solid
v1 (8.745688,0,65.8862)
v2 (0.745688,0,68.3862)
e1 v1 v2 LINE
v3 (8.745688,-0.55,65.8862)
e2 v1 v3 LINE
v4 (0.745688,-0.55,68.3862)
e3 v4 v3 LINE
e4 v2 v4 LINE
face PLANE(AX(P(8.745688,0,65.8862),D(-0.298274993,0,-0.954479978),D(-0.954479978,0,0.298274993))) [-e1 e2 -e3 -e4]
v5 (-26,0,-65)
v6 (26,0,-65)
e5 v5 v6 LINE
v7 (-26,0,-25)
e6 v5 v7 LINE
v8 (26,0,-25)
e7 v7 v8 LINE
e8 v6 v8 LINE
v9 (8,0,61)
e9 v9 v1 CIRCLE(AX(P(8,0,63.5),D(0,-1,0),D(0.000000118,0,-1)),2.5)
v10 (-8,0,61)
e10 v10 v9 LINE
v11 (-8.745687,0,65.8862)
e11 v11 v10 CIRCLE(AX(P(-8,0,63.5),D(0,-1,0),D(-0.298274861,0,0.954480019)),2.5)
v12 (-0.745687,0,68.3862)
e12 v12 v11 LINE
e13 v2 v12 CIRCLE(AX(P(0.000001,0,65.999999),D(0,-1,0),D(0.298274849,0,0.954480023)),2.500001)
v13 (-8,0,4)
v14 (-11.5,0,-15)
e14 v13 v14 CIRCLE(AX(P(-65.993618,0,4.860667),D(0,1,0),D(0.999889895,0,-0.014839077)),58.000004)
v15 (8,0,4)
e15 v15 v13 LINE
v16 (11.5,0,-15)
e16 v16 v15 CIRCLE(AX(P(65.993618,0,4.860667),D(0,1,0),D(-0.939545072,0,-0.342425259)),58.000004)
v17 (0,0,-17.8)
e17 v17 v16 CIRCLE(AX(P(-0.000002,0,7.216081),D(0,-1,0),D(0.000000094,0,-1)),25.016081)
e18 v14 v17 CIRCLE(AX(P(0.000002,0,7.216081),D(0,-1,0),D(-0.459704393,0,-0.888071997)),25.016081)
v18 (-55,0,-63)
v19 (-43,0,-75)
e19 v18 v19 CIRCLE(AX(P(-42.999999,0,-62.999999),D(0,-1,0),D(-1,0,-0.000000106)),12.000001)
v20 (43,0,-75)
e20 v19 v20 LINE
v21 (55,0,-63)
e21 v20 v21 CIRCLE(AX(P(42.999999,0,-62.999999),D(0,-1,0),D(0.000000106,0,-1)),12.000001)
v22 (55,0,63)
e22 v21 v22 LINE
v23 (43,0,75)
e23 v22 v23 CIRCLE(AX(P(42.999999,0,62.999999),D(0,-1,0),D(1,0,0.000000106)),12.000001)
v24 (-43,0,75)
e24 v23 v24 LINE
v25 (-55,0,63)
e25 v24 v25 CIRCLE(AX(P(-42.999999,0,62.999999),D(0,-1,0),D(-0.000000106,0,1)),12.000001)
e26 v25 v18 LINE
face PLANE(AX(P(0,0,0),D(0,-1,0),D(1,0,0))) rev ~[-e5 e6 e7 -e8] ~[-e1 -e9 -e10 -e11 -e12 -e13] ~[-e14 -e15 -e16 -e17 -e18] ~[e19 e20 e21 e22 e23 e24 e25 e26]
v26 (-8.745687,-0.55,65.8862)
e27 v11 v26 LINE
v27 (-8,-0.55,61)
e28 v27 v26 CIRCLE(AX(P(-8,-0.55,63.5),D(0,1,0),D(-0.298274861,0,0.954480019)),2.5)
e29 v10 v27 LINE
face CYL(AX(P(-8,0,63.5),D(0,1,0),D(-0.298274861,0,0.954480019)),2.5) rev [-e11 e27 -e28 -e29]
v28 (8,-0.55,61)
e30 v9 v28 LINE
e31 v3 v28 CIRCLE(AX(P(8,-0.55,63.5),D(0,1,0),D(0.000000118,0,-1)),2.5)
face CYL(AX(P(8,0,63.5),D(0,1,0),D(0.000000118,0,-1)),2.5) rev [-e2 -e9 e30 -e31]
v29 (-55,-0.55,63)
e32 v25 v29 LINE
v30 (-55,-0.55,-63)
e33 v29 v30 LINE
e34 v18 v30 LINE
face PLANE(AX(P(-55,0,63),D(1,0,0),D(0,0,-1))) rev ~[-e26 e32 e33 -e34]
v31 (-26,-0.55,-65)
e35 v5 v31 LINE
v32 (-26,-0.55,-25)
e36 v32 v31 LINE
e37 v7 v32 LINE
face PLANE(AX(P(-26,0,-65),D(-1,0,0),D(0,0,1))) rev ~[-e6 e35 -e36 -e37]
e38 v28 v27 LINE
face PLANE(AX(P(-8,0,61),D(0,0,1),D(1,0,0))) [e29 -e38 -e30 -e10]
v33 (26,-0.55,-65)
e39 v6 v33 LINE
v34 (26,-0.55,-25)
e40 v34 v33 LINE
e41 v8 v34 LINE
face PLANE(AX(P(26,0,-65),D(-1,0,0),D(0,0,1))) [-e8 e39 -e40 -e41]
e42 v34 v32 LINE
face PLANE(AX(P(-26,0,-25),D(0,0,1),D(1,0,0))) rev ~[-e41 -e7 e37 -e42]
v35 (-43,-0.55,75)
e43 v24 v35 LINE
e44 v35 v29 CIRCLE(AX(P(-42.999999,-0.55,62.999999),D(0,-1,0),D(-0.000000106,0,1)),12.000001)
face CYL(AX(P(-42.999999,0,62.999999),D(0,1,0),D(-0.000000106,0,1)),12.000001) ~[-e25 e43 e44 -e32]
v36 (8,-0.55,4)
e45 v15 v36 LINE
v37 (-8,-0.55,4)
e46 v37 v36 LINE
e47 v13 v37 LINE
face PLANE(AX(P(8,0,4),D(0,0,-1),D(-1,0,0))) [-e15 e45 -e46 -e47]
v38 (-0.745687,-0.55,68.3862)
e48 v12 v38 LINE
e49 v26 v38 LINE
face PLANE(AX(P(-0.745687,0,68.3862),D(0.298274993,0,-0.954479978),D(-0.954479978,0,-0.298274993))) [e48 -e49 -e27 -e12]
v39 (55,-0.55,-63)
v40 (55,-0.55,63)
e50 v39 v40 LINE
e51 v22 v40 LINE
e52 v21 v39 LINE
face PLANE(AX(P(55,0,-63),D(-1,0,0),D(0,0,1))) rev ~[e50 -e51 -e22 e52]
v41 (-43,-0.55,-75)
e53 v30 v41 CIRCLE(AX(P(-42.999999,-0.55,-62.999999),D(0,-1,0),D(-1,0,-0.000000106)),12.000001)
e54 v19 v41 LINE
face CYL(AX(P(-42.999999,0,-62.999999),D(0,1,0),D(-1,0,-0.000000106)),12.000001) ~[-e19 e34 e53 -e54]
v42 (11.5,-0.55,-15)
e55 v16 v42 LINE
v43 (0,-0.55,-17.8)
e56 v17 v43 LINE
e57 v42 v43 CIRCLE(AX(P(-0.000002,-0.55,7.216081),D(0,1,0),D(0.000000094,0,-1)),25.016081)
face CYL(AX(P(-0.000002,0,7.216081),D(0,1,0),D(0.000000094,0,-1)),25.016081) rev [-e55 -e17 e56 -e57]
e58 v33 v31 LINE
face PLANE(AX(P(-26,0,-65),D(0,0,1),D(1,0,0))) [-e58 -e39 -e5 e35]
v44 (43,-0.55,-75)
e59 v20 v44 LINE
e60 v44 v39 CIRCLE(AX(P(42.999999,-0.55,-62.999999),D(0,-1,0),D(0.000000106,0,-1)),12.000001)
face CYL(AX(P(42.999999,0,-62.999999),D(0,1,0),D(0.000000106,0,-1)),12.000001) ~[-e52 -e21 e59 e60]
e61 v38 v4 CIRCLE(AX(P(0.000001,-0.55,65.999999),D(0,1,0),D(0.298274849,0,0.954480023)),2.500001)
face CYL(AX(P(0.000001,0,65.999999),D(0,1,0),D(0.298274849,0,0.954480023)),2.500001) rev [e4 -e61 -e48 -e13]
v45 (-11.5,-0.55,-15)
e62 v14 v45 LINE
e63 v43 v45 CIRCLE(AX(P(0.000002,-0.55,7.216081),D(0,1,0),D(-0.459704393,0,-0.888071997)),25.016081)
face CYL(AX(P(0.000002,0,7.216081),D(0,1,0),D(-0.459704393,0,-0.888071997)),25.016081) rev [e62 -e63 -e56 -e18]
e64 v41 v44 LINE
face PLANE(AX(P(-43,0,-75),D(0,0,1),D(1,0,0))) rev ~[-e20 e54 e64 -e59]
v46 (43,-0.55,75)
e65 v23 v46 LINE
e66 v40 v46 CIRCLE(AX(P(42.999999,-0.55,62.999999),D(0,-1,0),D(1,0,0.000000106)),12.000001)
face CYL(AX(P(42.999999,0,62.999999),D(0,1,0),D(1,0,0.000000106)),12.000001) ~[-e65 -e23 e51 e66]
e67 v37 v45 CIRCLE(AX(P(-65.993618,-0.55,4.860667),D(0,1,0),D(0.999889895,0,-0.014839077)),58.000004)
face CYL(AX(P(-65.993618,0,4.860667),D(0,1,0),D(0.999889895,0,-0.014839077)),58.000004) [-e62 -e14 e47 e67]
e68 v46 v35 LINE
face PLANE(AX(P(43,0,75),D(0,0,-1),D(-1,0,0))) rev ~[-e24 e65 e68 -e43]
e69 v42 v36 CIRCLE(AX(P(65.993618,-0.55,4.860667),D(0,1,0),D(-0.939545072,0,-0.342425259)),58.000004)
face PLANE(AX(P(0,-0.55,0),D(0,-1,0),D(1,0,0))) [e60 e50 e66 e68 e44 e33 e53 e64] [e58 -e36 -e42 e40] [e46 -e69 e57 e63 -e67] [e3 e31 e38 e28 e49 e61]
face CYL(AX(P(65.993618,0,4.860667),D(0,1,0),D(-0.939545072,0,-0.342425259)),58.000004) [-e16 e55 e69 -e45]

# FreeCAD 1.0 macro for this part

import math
import FreeCAD as App
import Part
import Sketcher
from FreeCAD import Vector
Q = App.Units.Quantity


def add_polygon(sketch, points):
    """Adds a closed chain of lines whose ends are joined by coincident constraints."""
    first, n = sketch.GeometryCount, len(points)
    for a, b in zip(points, points[1:] + points[:1]):
        sketch.addGeometry(Part.LineSegment(App.Vector(*a, 0), App.Vector(*b, 0)), False)
    for i in range(n):
        sketch.addConstraint(Sketcher.Constraint("Coincident", first + i, 2, first + (i + 1) % n, 1))

doc = App.newDocument("Part")
body = doc.addObject("PartDesign::Body", "Body")

# Sketch on XZ plane
sketch1 = body.newObject("Sketcher::SketchObject", "Sketch")
sketch1.AttachmentSupport = (doc.getObject("XZ_Plane"), [""])
sketch1.MapMode = "FlatFace"
sketch1.addGeometry(Part.ArcOfCircle(Part.Circle(Vector(43, 63, 0), Vector(0, 0, 1), 12), math.radians(0), math.radians(90)), False)
sketch1.addGeometry(Part.LineSegment(Vector(43, 75, 0), Vector(-43, 75, 0)), False)
sketch1.addGeometry(Part.ArcOfCircle(Part.Circle(Vector(-43, 63, 0), Vector(0, 0, 1), 12), math.radians(90), math.radians(180)), False)
sketch1.addGeometry(Part.LineSegment(Vector(-55, 63, 0), Vector(-55, -63, 0)), False)
sketch1.addGeometry(Part.ArcOfCircle(Part.Circle(Vector(-43, -63, 0), Vector(0, 0, 1), 12), math.radians(-180), math.radians(-90)), False)
sketch1.addGeometry(Part.LineSegment(Vector(-43, -75, 0), Vector(43, -75, 0)), False)
sketch1.addGeometry(Part.ArcOfCircle(Part.Circle(Vector(43, -63, 0), Vector(0, 0, 1), 12), math.radians(-90), math.radians(0)), False)
sketch1.addGeometry(Part.LineSegment(Vector(55, -63, 0), Vector(55, 63, 0)), False)
sketch1.addConstraint(Sketcher.Constraint("Tangent", 0, 2, 1, 1))
sketch1.addConstraint(Sketcher.Constraint("Tangent", 1, 2, 2, 1))
sketch1.addConstraint(Sketcher.Constraint("Tangent", 2, 2, 3, 1))
sketch1.addConstraint(Sketcher.Constraint("Tangent", 3, 2, 4, 1))
sketch1.addConstraint(Sketcher.Constraint("Tangent", 4, 2, 5, 1))
sketch1.addConstraint(Sketcher.Constraint("Tangent", 5, 2, 6, 1))
sketch1.addConstraint(Sketcher.Constraint("Tangent", 6, 2, 7, 1))
sketch1.addConstraint(Sketcher.Constraint("Tangent", 7, 2, 0, 1))
sketch1.addConstraint(Sketcher.Constraint("Horizontal", 1))
sketch1.addConstraint(Sketcher.Constraint("Vertical", 3))
sketch1.addConstraint(Sketcher.Constraint("Horizontal", 5))
sketch1.addConstraint(Sketcher.Constraint("Vertical", 7))
sketch1.addConstraint(Sketcher.Constraint("Equal", 0, 2))
sketch1.addConstraint(Sketcher.Constraint("Equal", 2, 4))
sketch1.addConstraint(Sketcher.Constraint("Equal", 4, 6))
sketch1.addConstraint(Sketcher.Constraint("Symmetric", 0, 3, 4, 3, -1, 1))
sketch1.addConstraint(Sketcher.Constraint("Radius", 0, Q("12.000001 mm")))
sketch1.addConstraint(Sketcher.Constraint("DistanceX", 1, 2, 1, 1, Q("86 mm")))
sketch1.addConstraint(Sketcher.Constraint("DistanceY", 3, 2, 3, 1, Q("126 mm")))
pad1 = body.newObject("PartDesign::Pad", "Pad")
pad1.Profile = sketch1
pad1.Length = 0.55

# Sketch on XZ plane
sketch2 = body.newObject("Sketcher::SketchObject", "Sketch001")
sketch2.AttachmentSupport = (doc.getObject("XZ_Plane"), [""])
sketch2.MapMode = "FlatFace"
sketch2.addGeometry(Part.ArcOfCircle(Part.Circle(Vector(-66, 5, 0), Vector(0, 0, 1), 58), math.radians(-20.02), math.radians(-0.85)), False)  # 0
sketch2.addGeometry(Part.ArcOfCircle(Part.Circle(Vector(0, 7, 0), Vector(0, 0, 1), 25), math.radians(-117), math.radians(-90)), False)  # 1
sketch2.addGeometry(Part.ArcOfCircle(Part.Circle(Vector(0, 7, 0), Vector(0, 0, 1), 25), math.radians(-90), math.radians(-63)), False)  # 2
sketch2.addGeometry(Part.ArcOfCircle(Part.Circle(Vector(66, 5, 0), Vector(0, 0, 1), 58), math.radians(-179.15), math.radians(-159.98)), False)  # 3
sketch2.addGeometry(Part.LineSegment(Vector(8, 4, 0), Vector(-8, 4, 0)), False)  # 4
add_polygon(sketch2, [(-26, -25), (-26, -65), (26, -65), (26, -25)])  # lines 5-8
sketch2.addConstraint(Sketcher.Constraint("Coincident", 0, 1, 1, 1))
sketch2.addConstraint(Sketcher.Constraint("Tangent", 1, 2, 2, 1))
sketch2.addConstraint(Sketcher.Constraint("Coincident", 2, 2, 3, 2))
sketch2.addConstraint(Sketcher.Constraint("Coincident", 3, 1, 4, 1))
sketch2.addConstraint(Sketcher.Constraint("Coincident", 4, 2, 0, 2))
sketch2.addConstraint(Sketcher.Constraint("Horizontal", 4))
sketch2.addConstraint(Sketcher.Constraint("Vertical", 5))
sketch2.addConstraint(Sketcher.Constraint("Horizontal", 6))
sketch2.addConstraint(Sketcher.Constraint("Vertical", 7))
sketch2.addConstraint(Sketcher.Constraint("Horizontal", 8))
sketch2.addConstraint(Sketcher.Constraint("Equal", 1, 2))
sketch2.addConstraint(Sketcher.Constraint("Equal", 0, 3))
sketch2.addConstraint(Sketcher.Constraint("Symmetric", 0, 3, 3, 3, -2))
sketch2.addConstraint(Sketcher.Constraint("PointOnObject", 1, 2, -2))
sketch2.addConstraint(Sketcher.Constraint("Horizontal", 0, 1, 2, 2))
sketch2.addConstraint(Sketcher.Constraint("DistanceX", 4, 2, 4, 1, Q("16 mm")))
sketch2.addConstraint(Sketcher.Constraint("DistanceX", 6, 1, 6, 2, Q("52 mm")))
sketch2.addConstraint(Sketcher.Constraint("DistanceY", 5, 2, 5, 1, Q("40 mm")))
sketch2.addConstraint(Sketcher.Constraint("DistanceY", 0, 1, -1, 1, Q("15 mm")))
sketch2.addConstraint(Sketcher.Constraint("DistanceY", -1, 1, 3, 1, Q("4 mm")))
sketch2.addConstraint(Sketcher.Constraint("DistanceX", 5, 2, -1, 1, Q("26 mm")))
sketch2.addConstraint(Sketcher.Constraint("DistanceY", 5, 2, -1, 1, Q("65 mm")))
sketch2.addConstraint(Sketcher.Constraint("DistanceX", 0, 1, 2, 2, Q("23 mm")))
sketch2.addConstraint(Sketcher.Constraint("DistanceY", 1, 2, -1, 1, Q("17.8 mm")))
sketch2.addConstraint(Sketcher.Constraint("Radius", 0, Q("58.000004 mm")))
pocket1 = body.newObject("PartDesign::Pocket", "Pocket")
pocket1.Profile = sketch2
pocket1.Type = "ThroughAll"
pocket1.Reversed = True

# Sketch on XZ plane
sketch3 = body.newObject("Sketcher::SketchObject", "Sketch002")
sketch3.AttachmentSupport = (doc.getObject("XZ_Plane"), [""])
sketch3.MapMode = "FlatFace"
sketch3.addGeometry(Part.LineSegment(Vector(-8, 61, 0), Vector(8, 61, 0)), False)
sketch3.addGeometry(Part.ArcOfCircle(Part.Circle(Vector(8, 63.5, 0), Vector(0, 0, 1), 2.5), math.radians(-90), math.radians(73)), False)
sketch3.addGeometry(Part.LineSegment(Vector(8.7, 65.9, 0), Vector(0.7, 68.4, 0)), False)
sketch3.addGeometry(Part.ArcOfCircle(Part.Circle(Vector(0, 66, 0), Vector(0, 0, 1), 2.5), math.radians(73), math.radians(107)), False)
sketch3.addGeometry(Part.LineSegment(Vector(-0.7, 68.4, 0), Vector(-8.7, 65.9, 0)), False)
sketch3.addGeometry(Part.ArcOfCircle(Part.Circle(Vector(-8, 63.5, 0), Vector(0, 0, 1), 2.5), math.radians(107), math.radians(270)), False)
sketch3.addConstraint(Sketcher.Constraint("Tangent", 0, 2, 1, 1))
sketch3.addConstraint(Sketcher.Constraint("Tangent", 1, 2, 2, 1))
sketch3.addConstraint(Sketcher.Constraint("Tangent", 2, 2, 3, 1))
sketch3.addConstraint(Sketcher.Constraint("Tangent", 3, 2, 4, 1))
sketch3.addConstraint(Sketcher.Constraint("Tangent", 4, 2, 5, 1))
sketch3.addConstraint(Sketcher.Constraint("Tangent", 5, 2, 0, 1))
sketch3.addConstraint(Sketcher.Constraint("Horizontal", 0))
sketch3.addConstraint(Sketcher.Constraint("Equal", 1, 3))
sketch3.addConstraint(Sketcher.Constraint("Equal", 3, 5))
sketch3.addConstraint(Sketcher.Constraint("Symmetric", 2, 2, 3, 2, -2))
sketch3.addConstraint(Sketcher.Constraint("Radius", 1, Q("2.5 mm")))
sketch3.addConstraint(Sketcher.Constraint("DistanceX", 0, 1, 0, 2, Q("16 mm")))
sketch3.addConstraint(Sketcher.Constraint("DistanceY", -1, 1, 3, 3, Q("65.999999 mm")))
sketch3.addConstraint(Sketcher.Constraint("DistanceY", -1, 1, 0, 2, Q("61 mm")))
pocket2 = body.newObject("PartDesign::Pocket", "Pocket001")
pocket2.Profile = sketch3
pocket2.Type = "ThroughAll"
pocket2.Reversed = True

doc.recompute()
